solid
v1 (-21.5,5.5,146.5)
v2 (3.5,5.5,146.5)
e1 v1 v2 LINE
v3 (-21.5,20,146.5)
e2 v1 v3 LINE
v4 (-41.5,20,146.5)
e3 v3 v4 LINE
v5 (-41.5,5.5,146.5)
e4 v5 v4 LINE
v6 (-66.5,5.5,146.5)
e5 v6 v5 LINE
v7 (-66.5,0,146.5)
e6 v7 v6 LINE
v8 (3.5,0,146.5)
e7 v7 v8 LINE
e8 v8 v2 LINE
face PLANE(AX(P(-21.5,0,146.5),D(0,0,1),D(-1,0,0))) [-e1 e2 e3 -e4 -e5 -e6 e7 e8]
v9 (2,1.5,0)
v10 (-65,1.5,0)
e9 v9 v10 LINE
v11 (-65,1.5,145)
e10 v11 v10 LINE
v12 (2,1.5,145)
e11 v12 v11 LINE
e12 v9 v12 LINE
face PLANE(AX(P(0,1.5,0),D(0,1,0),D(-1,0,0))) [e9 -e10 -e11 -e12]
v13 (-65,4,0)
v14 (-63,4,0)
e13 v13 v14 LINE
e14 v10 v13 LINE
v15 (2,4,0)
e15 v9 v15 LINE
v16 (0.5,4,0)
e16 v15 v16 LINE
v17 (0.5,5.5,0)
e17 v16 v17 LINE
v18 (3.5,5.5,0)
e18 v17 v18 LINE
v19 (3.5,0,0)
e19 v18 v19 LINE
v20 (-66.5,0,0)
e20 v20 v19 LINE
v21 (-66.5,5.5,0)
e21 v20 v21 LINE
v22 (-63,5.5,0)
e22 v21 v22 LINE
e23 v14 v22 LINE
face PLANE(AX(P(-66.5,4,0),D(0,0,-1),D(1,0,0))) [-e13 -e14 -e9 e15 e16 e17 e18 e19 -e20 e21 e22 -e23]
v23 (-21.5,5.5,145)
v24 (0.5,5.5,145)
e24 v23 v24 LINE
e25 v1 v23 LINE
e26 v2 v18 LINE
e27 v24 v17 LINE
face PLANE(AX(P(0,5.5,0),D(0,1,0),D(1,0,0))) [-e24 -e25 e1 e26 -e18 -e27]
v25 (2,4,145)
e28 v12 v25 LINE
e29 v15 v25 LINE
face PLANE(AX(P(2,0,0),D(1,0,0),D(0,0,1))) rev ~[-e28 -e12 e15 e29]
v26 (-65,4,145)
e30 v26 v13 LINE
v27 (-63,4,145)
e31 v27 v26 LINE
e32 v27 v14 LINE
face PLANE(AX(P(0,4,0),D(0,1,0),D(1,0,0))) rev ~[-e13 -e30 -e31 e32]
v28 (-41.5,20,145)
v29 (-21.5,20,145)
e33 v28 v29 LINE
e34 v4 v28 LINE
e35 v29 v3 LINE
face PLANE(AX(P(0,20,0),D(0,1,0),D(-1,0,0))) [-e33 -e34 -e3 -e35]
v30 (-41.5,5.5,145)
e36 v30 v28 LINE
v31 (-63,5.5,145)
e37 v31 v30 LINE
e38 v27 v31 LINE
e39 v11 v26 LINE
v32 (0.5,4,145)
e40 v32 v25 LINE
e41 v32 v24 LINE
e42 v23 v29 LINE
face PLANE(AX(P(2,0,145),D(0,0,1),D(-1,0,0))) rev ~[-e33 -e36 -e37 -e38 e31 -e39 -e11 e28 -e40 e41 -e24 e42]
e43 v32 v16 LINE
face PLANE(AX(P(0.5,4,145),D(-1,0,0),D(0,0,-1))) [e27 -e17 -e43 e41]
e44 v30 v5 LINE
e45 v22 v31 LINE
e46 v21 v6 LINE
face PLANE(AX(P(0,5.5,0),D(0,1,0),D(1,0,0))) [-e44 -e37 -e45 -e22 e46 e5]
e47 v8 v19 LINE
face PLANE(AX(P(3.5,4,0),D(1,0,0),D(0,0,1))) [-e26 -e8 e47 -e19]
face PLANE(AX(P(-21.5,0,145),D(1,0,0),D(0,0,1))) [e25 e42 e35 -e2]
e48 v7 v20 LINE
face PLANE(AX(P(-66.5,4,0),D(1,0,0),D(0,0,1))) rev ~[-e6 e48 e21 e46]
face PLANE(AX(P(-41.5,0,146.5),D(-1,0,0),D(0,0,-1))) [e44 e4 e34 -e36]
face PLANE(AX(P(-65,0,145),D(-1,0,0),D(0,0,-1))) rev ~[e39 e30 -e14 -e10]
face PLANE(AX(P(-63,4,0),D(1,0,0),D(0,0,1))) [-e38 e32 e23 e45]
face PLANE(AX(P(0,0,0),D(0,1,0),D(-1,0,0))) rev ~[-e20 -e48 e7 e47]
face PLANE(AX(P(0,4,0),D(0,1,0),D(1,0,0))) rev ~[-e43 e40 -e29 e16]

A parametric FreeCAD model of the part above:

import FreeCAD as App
import Part
import Sketcher
Q = App.Units.Quantity

doc = App.newDocument("Part")
params = doc.addObject("Spreadsheet::Sheet", "Params")
for row, (alias, value) in enumerate([
    ("sketch1_height", "145 mm"),
    ("sketch1_width", "67 mm"),
    ("pad1_length", "1.5 mm"),
    ("sketch2_height", "145 mm"),
    ("sketch2_width", "1.5 mm"),
    ("pad2_length", "4 mm"),
    ("sketch3_width", "3 mm"),
    ("sketch3_height", "145 mm"),
    ("pad3_length", "1.5 mm"),
    ("sketch4_width", "3.5 mm"),
    ("sketch4_height", "145 mm"),
    ("pad4_length", "1.5 mm"),
    ("sketch5_height", "1.5 mm"),
    ("sketch5_width", "70 mm"),
    ("pad5_length", "5.5 mm"),
    ("sketch6_width", "20 mm"),
    ("sketch6_height", "1.5 mm"),
    ("pad6_length", "20 mm"),
], start=1):
    params.set(f"A{row}", alias)
    params.set(f"B{row}", "=" + value)
    params.setAlias(f"B{row}", alias)

body = doc.addObject("PartDesign::Body", "Body")

# Sketch on XZ plane
sketch1 = doc.addObject("Sketcher::SketchObject", "Sketch")
body.addObject(sketch1)
sketch1.AttachmentSupport = (doc.XZ_Plane, [""])
sketch1.MapMode = "FlatFace"
sketch1.addGeometry(Part.LineSegment(App.Vector(2, 145, 0), App.Vector(2, 0, 0)), False)
sketch1.addGeometry(Part.LineSegment(App.Vector(2, 0, 0), App.Vector(-65, 0, 0)), False)
sketch1.addGeometry(Part.LineSegment(App.Vector(-65, 0, 0), App.Vector(-65, 145, 0)), False)
sketch1.addGeometry(Part.LineSegment(App.Vector(-65, 145, 0), App.Vector(2, 145, 0)), False)
sketch1.addConstraint(Sketcher.Constraint("Coincident", 0, 2, 1, 1))
sketch1.addConstraint(Sketcher.Constraint("Coincident", 1, 2, 2, 1))
sketch1.addConstraint(Sketcher.Constraint("Coincident", 2, 2, 3, 1))
sketch1.addConstraint(Sketcher.Constraint("Coincident", 3, 2, 0, 1))
sketch1.addConstraint(Sketcher.Constraint("Vertical", 0))
sketch1.addConstraint(Sketcher.Constraint("Horizontal", 1))
sketch1.addConstraint(Sketcher.Constraint("Vertical", 2))
sketch1.addConstraint(Sketcher.Constraint("Horizontal", 3))
sketch1.addConstraint(Sketcher.Constraint("PointOnObject", 0, 2, -1))
sketch1.addConstraint(Sketcher.Constraint("DistanceY", 0, 2, 0, 1, Q("145 mm")))
sketch1.addConstraint(Sketcher.Constraint("DistanceX", 1, 2, 1, 1, Q("67 mm")))
sketch1.addConstraint(Sketcher.Constraint("DistanceX", -1, 1, 0, 2, Q("2 mm")))
sketch1.setExpression("Constraints[9]", "Params.sketch1_height")
sketch1.setExpression("Constraints[10]", "Params.sketch1_width")
pad1 = doc.addObject("PartDesign::Pad", "Pad")
body.addObject(pad1)
pad1.Profile = sketch1
pad1.setExpression("Length", "Params.pad1_length")
pad1.Reversed = True

# Sketch on XZ plane
sketch2 = doc.addObject("Sketcher::SketchObject", "Sketch001")
body.addObject(sketch2)
sketch2.AttachmentSupport = (doc.XZ_Plane, [""])
sketch2.MapMode = "FlatFace"
sketch2.addGeometry(Part.LineSegment(App.Vector(3.5, 0, 0), App.Vector(2, 0, 0)), False)
sketch2.addGeometry(Part.LineSegment(App.Vector(2, 0, 0), App.Vector(2, 145, 0)), False)
sketch2.addGeometry(Part.LineSegment(App.Vector(2, 145, 0), App.Vector(3.5, 145, 0)), False)
sketch2.addGeometry(Part.LineSegment(App.Vector(3.5, 145, 0), App.Vector(3.5, 0, 0)), False)
sketch2.addGeometry(Part.LineSegment(App.Vector(-65, 145, 0), App.Vector(-65, 0, 0)), False)
sketch2.addGeometry(Part.LineSegment(App.Vector(-65, 0, 0), App.Vector(-66.5, 0, 0)), False)
sketch2.addGeometry(Part.LineSegment(App.Vector(-66.5, 0, 0), App.Vector(-66.5, 145, 0)), False)
sketch2.addGeometry(Part.LineSegment(App.Vector(-66.5, 145, 0), App.Vector(-65, 145, 0)), False)
sketch2.addConstraint(Sketcher.Constraint("Coincident", 0, 2, 1, 1))
sketch2.addConstraint(Sketcher.Constraint("Coincident", 1, 2, 2, 1))
sketch2.addConstraint(Sketcher.Constraint("Coincident", 2, 2, 3, 1))
sketch2.addConstraint(Sketcher.Constraint("Coincident", 3, 2, 0, 1))
sketch2.addConstraint(Sketcher.Constraint("Coincident", 4, 2, 5, 1))
sketch2.addConstraint(Sketcher.Constraint("Coincident", 5, 2, 6, 1))
sketch2.addConstraint(Sketcher.Constraint("Coincident", 6, 2, 7, 1))
sketch2.addConstraint(Sketcher.Constraint("Coincident", 7, 2, 4, 1))
sketch2.addConstraint(Sketcher.Constraint("Horizontal", 0))
sketch2.addConstraint(Sketcher.Constraint("Vertical", 1))
sketch2.addConstraint(Sketcher.Constraint("Horizontal", 2))
sketch2.addConstraint(Sketcher.Constraint("Vertical", 3))
sketch2.addConstraint(Sketcher.Constraint("Vertical", 4))
sketch2.addConstraint(Sketcher.Constraint("Horizontal", 5))
sketch2.addConstraint(Sketcher.Constraint("Vertical", 6))
sketch2.addConstraint(Sketcher.Constraint("Horizontal", 7))
sketch2.addConstraint(Sketcher.Constraint("PointOnObject", 0, 2, -1))
sketch2.addConstraint(Sketcher.Constraint("PointOnObject", 4, 2, -1))
sketch2.addConstraint(Sketcher.Constraint("Horizontal", 2, 2, 6, 2))
sketch2.addConstraint(Sketcher.Constraint("Equal", 2, 5))
sketch2.addConstraint(Sketcher.Constraint("DistanceY", 1, 1, 1, 2, Q("145 mm")))
sketch2.addConstraint(Sketcher.Constraint("DistanceX", 0, 2, 0, 1, Q("1.5 mm")))
sketch2.addConstraint(Sketcher.Constraint("DistanceX", -1, 1, 2, 2, Q("3.5 mm")))
sketch2.addConstraint(Sketcher.Constraint("DistanceX", 4, 2, -1, 1, Q("65 mm")))
sketch2.setExpression("Constraints[20]", "Params.sketch2_height")
sketch2.setExpression("Constraints[21]", "Params.sketch2_width")
pad2 = doc.addObject("PartDesign::Pad", "Pad001")
body.addObject(pad2)
pad2.Profile = sketch2
pad2.setExpression("Length", "Params.pad2_length")
pad2.Reversed = True

# Sketch on XZ plane
sketch3 = doc.addObject("Sketcher::SketchObject", "Sketch002")
body.addObject(sketch3)
sketch3.AttachmentSupport = (doc.XZ_Plane, [""])
sketch3.MapMode = "FlatFace"
sketch3.AttachmentOffset = App.Placement(App.Vector(0, 0, -4), App.Rotation())
sketch3.addGeometry(Part.LineSegment(App.Vector(0.5, 0, 0), App.Vector(0.5, 145, 0)), False)
sketch3.addGeometry(Part.LineSegment(App.Vector(0.5, 145, 0), App.Vector(3.5, 145, 0)), False)
sketch3.addGeometry(Part.LineSegment(App.Vector(3.5, 145, 0), App.Vector(3.5, 0, 0)), False)
sketch3.addGeometry(Part.LineSegment(App.Vector(3.5, 0, 0), App.Vector(0.5, 0, 0)), False)
sketch3.addConstraint(Sketcher.Constraint("Coincident", 0, 2, 1, 1))
sketch3.addConstraint(Sketcher.Constraint("Coincident", 1, 2, 2, 1))
sketch3.addConstraint(Sketcher.Constraint("Coincident", 2, 2, 3, 1))
sketch3.addConstraint(Sketcher.Constraint("Coincident", 3, 2, 0, 1))
sketch3.addConstraint(Sketcher.Constraint("Vertical", 0))
sketch3.addConstraint(Sketcher.Constraint("Horizontal", 1))
sketch3.addConstraint(Sketcher.Constraint("Vertical", 2))
sketch3.addConstraint(Sketcher.Constraint("Horizontal", 3))
sketch3.addConstraint(Sketcher.Constraint("PointOnObject", 2, 2, -1))
sketch3.addConstraint(Sketcher.Constraint("DistanceX", 1, 1, 1, 2, Q("3 mm")))
sketch3.addConstraint(Sketcher.Constraint("DistanceY", 0, 1, 0, 2, Q("145 mm")))
sketch3.addConstraint(Sketcher.Constraint("DistanceX", -1, 1, 0, 2, Q("0.5 mm")))
sketch3.setExpression("Constraints[9]", "Params.sketch3_width")
sketch3.setExpression("Constraints[10]", "Params.sketch3_height")
pad3 = doc.addObject("PartDesign::Pad", "Pad002")
body.addObject(pad3)
pad3.Profile = sketch3
pad3.setExpression("Length", "Params.pad3_length")
pad3.Reversed = True

# Sketch on XZ plane
sketch4 = doc.addObject("Sketcher::SketchObject", "Sketch003")
body.addObject(sketch4)
sketch4.AttachmentSupport = (doc.XZ_Plane, [""])
sketch4.MapMode = "FlatFace"
sketch4.AttachmentOffset = App.Placement(App.Vector(0, 0, -4), App.Rotation())
sketch4.addGeometry(Part.LineSegment(App.Vector(-63, 0, 0), App.Vector(-66.5, 0, 0)), False)
sketch4.addGeometry(Part.LineSegment(App.Vector(-66.5, 0, 0), App.Vector(-66.5, 145, 0)), False)
sketch4.addGeometry(Part.LineSegment(App.Vector(-66.5, 145, 0), App.Vector(-63, 145, 0)), False)
sketch4.addGeometry(Part.LineSegment(App.Vector(-63, 145, 0), App.Vector(-63, 0, 0)), False)
sketch4.addConstraint(Sketcher.Constraint("Coincident", 0, 2, 1, 1))
sketch4.addConstraint(Sketcher.Constraint("Coincident", 1, 2, 2, 1))
sketch4.addConstraint(Sketcher.Constraint("Coincident", 2, 2, 3, 1))
sketch4.addConstraint(Sketcher.Constraint("Coincident", 3, 2, 0, 1))
sketch4.addConstraint(Sketcher.Constraint("Horizontal", 0))
sketch4.addConstraint(Sketcher.Constraint("Vertical", 1))
sketch4.addConstraint(Sketcher.Constraint("Horizontal", 2))
sketch4.addConstraint(Sketcher.Constraint("Vertical", 3))
sketch4.addConstraint(Sketcher.Constraint("PointOnObject", 0, 2, -1))
sketch4.addConstraint(Sketcher.Constraint("DistanceX", 0, 2, 0, 1, Q("3.5 mm")))
sketch4.addConstraint(Sketcher.Constraint("DistanceY", 1, 1, 1, 2, Q("145 mm")))
sketch4.addConstraint(Sketcher.Constraint("DistanceX", 2, 2, -1, 1, Q("63 mm")))
sketch4.setExpression("Constraints[9]", "Params.sketch4_width")
sketch4.setExpression("Constraints[10]", "Params.sketch4_height")
pad4 = doc.addObject("PartDesign::Pad", "Pad003")
body.addObject(pad4)
pad4.Profile = sketch4
pad4.setExpression("Length", "Params.pad4_length")
pad4.Reversed = True

# Sketch on XZ plane
sketch5 = doc.addObject("Sketcher::SketchObject", "Sketch004")
body.addObject(sketch5)
sketch5.AttachmentSupport = (doc.XZ_Plane, [""])
sketch5.MapMode = "FlatFace"
sketch5.addGeometry(Part.LineSegment(App.Vector(-66.5, 145, 0), App.Vector(-66.5, 146.5, 0)), False)
sketch5.addGeometry(Part.LineSegment(App.Vector(-66.5, 146.5, 0), App.Vector(3.5, 146.5, 0)), False)
sketch5.addGeometry(Part.LineSegment(App.Vector(3.5, 146.5, 0), App.Vector(3.5, 145, 0)), False)
sketch5.addGeometry(Part.LineSegment(App.Vector(3.5, 145, 0), App.Vector(-66.5, 145, 0)), False)
sketch5.addConstraint(Sketcher.Constraint("Coincident", 0, 2, 1, 1))
sketch5.addConstraint(Sketcher.Constraint("Coincident", 1, 2, 2, 1))
sketch5.addConstraint(Sketcher.Constraint("Coincident", 2, 2, 3, 1))
sketch5.addConstraint(Sketcher.Constraint("Coincident", 3, 2, 0, 1))
sketch5.addConstraint(Sketcher.Constraint("Vertical", 0))
sketch5.addConstraint(Sketcher.Constraint("Horizontal", 1))
sketch5.addConstraint(Sketcher.Constraint("Vertical", 2))
sketch5.addConstraint(Sketcher.Constraint("Horizontal", 3))
sketch5.addConstraint(Sketcher.Constraint("DistanceY", 0, 1, 0, 2, Q("1.5 mm")))
sketch5.addConstraint(Sketcher.Constraint("DistanceY", -1, 1, 2, 2, Q("145 mm")))
sketch5.addConstraint(Sketcher.Constraint("DistanceX", -1, 1, 1, 2, Q("3.5 mm")))
sketch5.addConstraint(Sketcher.Constraint("DistanceX", 1, 1, 1, 2, Q("70 mm")))
sketch5.setExpression("Constraints[8]", "Params.sketch5_height")
sketch5.setExpression("Constraints[11]", "Params.sketch5_width")
pad5 = doc.addObject("PartDesign::Pad", "Pad004")
body.addObject(pad5)
pad5.Profile = sketch5
pad5.setExpression("Length", "Params.pad5_length")
pad5.Reversed = True

# Sketch on XZ plane
sketch6 = doc.addObject("Sketcher::SketchObject", "Sketch005")
body.addObject(sketch6)
sketch6.AttachmentSupport = (doc.XZ_Plane, [""])
sketch6.MapMode = "FlatFace"
sketch6.addGeometry(Part.LineSegment(App.Vector(-21.5, 146.5, 0), App.Vector(-21.5, 145, 0)), False)
sketch6.addGeometry(Part.LineSegment(App.Vector(-21.5, 145, 0), App.Vector(-41.5, 145, 0)), False)
sketch6.addGeometry(Part.LineSegment(App.Vector(-41.5, 145, 0), App.Vector(-41.5, 146.5, 0)), False)
sketch6.addGeometry(Part.LineSegment(App.Vector(-41.5, 146.5, 0), App.Vector(-21.5, 146.5, 0)), False)
sketch6.addConstraint(Sketcher.Constraint("Coincident", 0, 2, 1, 1))
sketch6.addConstraint(Sketcher.Constraint("Coincident", 1, 2, 2, 1))
sketch6.addConstraint(Sketcher.Constraint("Coincident", 2, 2, 3, 1))
sketch6.addConstraint(Sketcher.Constraint("Coincident", 3, 2, 0, 1))
sketch6.addConstraint(Sketcher.Constraint("Vertical", 0))
sketch6.addConstraint(Sketcher.Constraint("Horizontal", 1))
sketch6.addConstraint(Sketcher.Constraint("Vertical", 2))
sketch6.addConstraint(Sketcher.Constraint("Horizontal", 3))
sketch6.addConstraint(Sketcher.Constraint("DistanceX", 1, 2, 1, 1, Q("20 mm")))
sketch6.addConstraint(Sketcher.Constraint("DistanceY", 0, 2, 0, 1, Q("1.5 mm")))
sketch6.addConstraint(Sketcher.Constraint("DistanceY", -1, 1, 0, 2, Q("145 mm")))
sketch6.addConstraint(Sketcher.Constraint("DistanceX", 0, 2, -1, 1, Q("21.5 mm")))
sketch6.setExpression("Constraints[8]", "Params.sketch6_width")
sketch6.setExpression("Constraints[9]", "Params.sketch6_height")
pad6 = doc.addObject("PartDesign::Pad", "Pad005")
body.addObject(pad6)
pad6.Profile = sketch6
pad6.setExpression("Length", "Params.pad6_length")
pad6.Reversed = True

doc.recompute()
